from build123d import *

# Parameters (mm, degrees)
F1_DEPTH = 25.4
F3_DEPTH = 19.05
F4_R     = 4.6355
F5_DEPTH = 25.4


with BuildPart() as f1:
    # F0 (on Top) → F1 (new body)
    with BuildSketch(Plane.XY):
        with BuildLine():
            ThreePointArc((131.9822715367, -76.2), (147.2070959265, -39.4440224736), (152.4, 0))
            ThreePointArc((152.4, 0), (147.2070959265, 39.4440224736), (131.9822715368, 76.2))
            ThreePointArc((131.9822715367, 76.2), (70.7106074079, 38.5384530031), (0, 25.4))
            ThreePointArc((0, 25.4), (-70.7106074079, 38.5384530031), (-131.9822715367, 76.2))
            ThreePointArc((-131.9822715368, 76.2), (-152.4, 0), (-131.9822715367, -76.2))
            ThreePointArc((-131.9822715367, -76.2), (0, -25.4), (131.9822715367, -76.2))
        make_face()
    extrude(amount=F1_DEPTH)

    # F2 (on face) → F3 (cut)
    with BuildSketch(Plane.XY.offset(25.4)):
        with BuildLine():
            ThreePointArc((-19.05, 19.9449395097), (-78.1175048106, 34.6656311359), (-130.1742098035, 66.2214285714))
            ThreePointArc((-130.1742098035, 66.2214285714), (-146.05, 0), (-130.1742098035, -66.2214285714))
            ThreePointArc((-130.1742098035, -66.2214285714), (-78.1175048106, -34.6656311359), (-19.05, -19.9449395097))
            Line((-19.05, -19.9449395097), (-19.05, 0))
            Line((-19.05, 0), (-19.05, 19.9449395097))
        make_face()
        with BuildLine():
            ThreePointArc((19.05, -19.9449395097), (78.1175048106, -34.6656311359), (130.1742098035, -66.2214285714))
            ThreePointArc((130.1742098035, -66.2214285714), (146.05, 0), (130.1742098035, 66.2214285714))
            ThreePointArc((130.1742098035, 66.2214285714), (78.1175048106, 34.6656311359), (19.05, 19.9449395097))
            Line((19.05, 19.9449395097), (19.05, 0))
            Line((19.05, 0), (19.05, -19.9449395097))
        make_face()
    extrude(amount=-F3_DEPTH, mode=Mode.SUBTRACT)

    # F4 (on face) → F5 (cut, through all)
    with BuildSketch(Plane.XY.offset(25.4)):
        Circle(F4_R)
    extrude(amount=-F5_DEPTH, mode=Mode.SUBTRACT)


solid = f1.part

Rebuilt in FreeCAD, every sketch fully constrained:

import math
import FreeCAD as App
import Part
import Sketcher
from FreeCAD import Vector
Q = App.Units.Quantity

doc = App.newDocument("Part")
body = doc.addObject("PartDesign::Body", "Body")

# Sketch on XY plane
sketch1 = body.newObject("Sketcher::SketchObject", "Sketch")
sketch1.AttachmentSupport = (doc.getObject("XY_Plane"), [""])
sketch1.MapMode = "FlatFace"
sketch1.addGeometry(Part.ArcOfCircle(Part.Circle(Vector(0, 0, 0), Vector(0, 0, 1), 152), math.radians(-30), math.radians(0)), False)
sketch1.addGeometry(Part.ArcOfCircle(Part.Circle(Vector(0, 0, 0), Vector(0, 0, 1), 152), math.radians(0), math.radians(30)), False)
sketch1.addGeometry(Part.ArcOfCircle(Part.Circle(Vector(0, 222, 0), Vector(0, 0, 1), 197), math.radians(-90), math.radians(-48)), False)
sketch1.addGeometry(Part.ArcOfCircle(Part.Circle(Vector(0, 222, 0), Vector(0, 0, 1), 197), math.radians(-132), math.radians(-90)), False)
sketch1.addGeometry(Part.ArcOfCircle(Part.Circle(Vector(0, 0, 0), Vector(0, 0, 1), 152), math.radians(150), math.radians(210)), False)
sketch1.addGeometry(Part.ArcOfCircle(Part.Circle(Vector(0, -222, 0), Vector(0, 0, 1), 197), math.radians(48), math.radians(132)), False)
sketch1.addConstraint(Sketcher.Constraint("Tangent", 0, 2, 1, 1))
sketch1.addConstraint(Sketcher.Constraint("Coincident", 1, 2, 2, 2))
sketch1.addConstraint(Sketcher.Constraint("Tangent", 2, 1, 3, 2))
sketch1.addConstraint(Sketcher.Constraint("Coincident", 3, 1, 4, 1))
sketch1.addConstraint(Sketcher.Constraint("Coincident", 4, 2, 5, 2))
sketch1.addConstraint(Sketcher.Constraint("Coincident", 5, 1, 0, 1))
sketch1.addConstraint(Sketcher.Constraint("Coincident", 0, 3, -1, 1))
sketch1.addConstraint(Sketcher.Constraint("Coincident", 4, 3, -1, 1))
sketch1.addConstraint(Sketcher.Constraint("Equal", 0, 1))
sketch1.addConstraint(Sketcher.Constraint("Equal", 2, 3))
sketch1.addConstraint(Sketcher.Constraint("Equal", 1, 4))
sketch1.addConstraint(Sketcher.Constraint("Equal", 3, 5))
sketch1.addConstraint(Sketcher.Constraint("Symmetric", 2, 3, 5, 3, -1, 1))
sketch1.addConstraint(Sketcher.Constraint("PointOnObject", 2, 3, -2))
sketch1.addConstraint(Sketcher.Constraint("PointOnObject", 0, 2, -1))
sketch1.addConstraint(Sketcher.Constraint("PointOnObject", 2, 1, -2))
sketch1.addConstraint(Sketcher.Constraint("Radius", 0, Q("6 in")))
sketch1.addConstraint(Sketcher.Constraint("Radius", 2, Q("7.75 in")))
sketch1.addConstraint(Sketcher.Constraint("DistanceY", -1, 1, 1, 2, Q("3 in")))
pad1 = body.newObject("PartDesign::Pad", "Pad")
pad1.Profile = sketch1
pad1.Length = Q("1 in")

# Sketch on XY plane
sketch2 = body.newObject("Sketcher::SketchObject", "Sketch001")
sketch2.AttachmentSupport = (doc.getObject("XY_Plane"), [""])
sketch2.MapMode = "FlatFace"
sketch2.AttachmentOffset = App.Placement(Vector(0, 0, 1 * 25.4), App.Rotation())
sketch2.addGeometry(Part.ArcOfCircle(Part.Circle(Vector(0, 222, 0), Vector(0, 0, 1), 203), math.radians(-130), math.radians(-95)), False)
sketch2.addGeometry(Part.ArcOfCircle(Part.Circle(Vector(0, 0, 0), Vector(0, 0, 1), 146), math.radians(153), math.radians(207)), False)
sketch2.addGeometry(Part.ArcOfCircle(Part.Circle(Vector(0, -222, 0), Vector(0, 0, 1), 203), math.radians(95), math.radians(130)), False)
sketch2.addGeometry(Part.LineSegment(Vector(-19, -20, 0), Vector(-19, 20, 0)), False)
sketch2.addGeometry(Part.ArcOfCircle(Part.Circle(Vector(0, -222, 0), Vector(0, 0, 1), 203), math.radians(50), math.radians(85)), False)
sketch2.addGeometry(Part.ArcOfCircle(Part.Circle(Vector(0, 0, 0), Vector(0, 0, 1), 146), math.radians(-27), math.radians(27)), False)
sketch2.addGeometry(Part.ArcOfCircle(Part.Circle(Vector(0, 222, 0), Vector(0, 0, 1), 203), math.radians(-85), math.radians(-50)), False)
sketch2.addGeometry(Part.LineSegment(Vector(19, 20, 0), Vector(19, -20, 0)), False)
sketch2.addConstraint(Sketcher.Constraint("Coincident", 0, 1, 1, 1))
sketch2.addConstraint(Sketcher.Constraint("Coincident", 1, 2, 2, 2))
sketch2.addConstraint(Sketcher.Constraint("Coincident", 2, 1, 3, 1))
sketch2.addConstraint(Sketcher.Constraint("Coincident", 3, 2, 0, 2))
sketch2.addConstraint(Sketcher.Constraint("Coincident", 4, 1, 5, 1))
sketch2.addConstraint(Sketcher.Constraint("Coincident", 5, 2, 6, 2))
sketch2.addConstraint(Sketcher.Constraint("Coincident", 6, 1, 7, 1))
sketch2.addConstraint(Sketcher.Constraint("Coincident", 7, 2, 4, 2))
sketch2.addConstraint(Sketcher.Constraint("Vertical", 3))
sketch2.addConstraint(Sketcher.Constraint("Vertical", 7))
sketch2.addConstraint(Sketcher.Constraint("Coincident", 1, 3, -1, 1))
sketch2.addConstraint(Sketcher.Constraint("Coincident", 5, 3, -1, 1))
sketch2.addConstraint(Sketcher.Constraint("Coincident", 4, 3, 2, 3))
sketch2.addConstraint(Sketcher.Constraint("Coincident", 6, 3, 0, 3))
sketch2.addConstraint(Sketcher.Constraint("Equal", 0, 2))
sketch2.addConstraint(Sketcher.Constraint("Equal", 2, 4))
sketch2.addConstraint(Sketcher.Constraint("Equal", 1, 5))
sketch2.addConstraint(Sketcher.Constraint("Equal", 4, 6))
sketch2.addConstraint(Sketcher.Constraint("Symmetric", 0, 3, 2, 3, -1, 1))
sketch2.addConstraint(Sketcher.Constraint("Symmetric", 3, 2, 6, 1, -2))
sketch2.addConstraint(Sketcher.Constraint("Radius", 0, Q("8 in")))
sketch2.addConstraint(Sketcher.Constraint("Radius", 1, Q("5.75 in")))
sketch2.addConstraint(Sketcher.Constraint("DistanceY", 2, 3, 0, 3, Q("17.5 in")))
sketch2.addConstraint(Sketcher.Constraint("DistanceX", 3, 2, 6, 1, Q("1.5 in")))
pocket1 = body.newObject("PartDesign::Pocket", "Pocket")
pocket1.Profile = sketch2
pocket1.Length = Q("0.75 in")

# Sketch on XY plane
sketch3 = body.newObject("Sketcher::SketchObject", "Sketch002")
sketch3.AttachmentSupport = (doc.getObject("XY_Plane"), [""])
sketch3.MapMode = "FlatFace"
sketch3.AttachmentOffset = App.Placement(Vector(0, 0, 1 * 25.4), App.Rotation())
sketch3.addGeometry(Part.Circle(Vector(0, 0, 0), Vector(0, 0, 1), 4.6), False)
sketch3.addConstraint(Sketcher.Constraint("Coincident", 0, 3, -1, 1))
sketch3.addConstraint(Sketcher.Constraint("Diameter", 0, Q("0.365 in")))
pocket2 = body.newObject("PartDesign::Pocket", "Pocket001")
pocket2.Profile = sketch3
pocket2.Type = "ThroughAll"

doc.recompute()
